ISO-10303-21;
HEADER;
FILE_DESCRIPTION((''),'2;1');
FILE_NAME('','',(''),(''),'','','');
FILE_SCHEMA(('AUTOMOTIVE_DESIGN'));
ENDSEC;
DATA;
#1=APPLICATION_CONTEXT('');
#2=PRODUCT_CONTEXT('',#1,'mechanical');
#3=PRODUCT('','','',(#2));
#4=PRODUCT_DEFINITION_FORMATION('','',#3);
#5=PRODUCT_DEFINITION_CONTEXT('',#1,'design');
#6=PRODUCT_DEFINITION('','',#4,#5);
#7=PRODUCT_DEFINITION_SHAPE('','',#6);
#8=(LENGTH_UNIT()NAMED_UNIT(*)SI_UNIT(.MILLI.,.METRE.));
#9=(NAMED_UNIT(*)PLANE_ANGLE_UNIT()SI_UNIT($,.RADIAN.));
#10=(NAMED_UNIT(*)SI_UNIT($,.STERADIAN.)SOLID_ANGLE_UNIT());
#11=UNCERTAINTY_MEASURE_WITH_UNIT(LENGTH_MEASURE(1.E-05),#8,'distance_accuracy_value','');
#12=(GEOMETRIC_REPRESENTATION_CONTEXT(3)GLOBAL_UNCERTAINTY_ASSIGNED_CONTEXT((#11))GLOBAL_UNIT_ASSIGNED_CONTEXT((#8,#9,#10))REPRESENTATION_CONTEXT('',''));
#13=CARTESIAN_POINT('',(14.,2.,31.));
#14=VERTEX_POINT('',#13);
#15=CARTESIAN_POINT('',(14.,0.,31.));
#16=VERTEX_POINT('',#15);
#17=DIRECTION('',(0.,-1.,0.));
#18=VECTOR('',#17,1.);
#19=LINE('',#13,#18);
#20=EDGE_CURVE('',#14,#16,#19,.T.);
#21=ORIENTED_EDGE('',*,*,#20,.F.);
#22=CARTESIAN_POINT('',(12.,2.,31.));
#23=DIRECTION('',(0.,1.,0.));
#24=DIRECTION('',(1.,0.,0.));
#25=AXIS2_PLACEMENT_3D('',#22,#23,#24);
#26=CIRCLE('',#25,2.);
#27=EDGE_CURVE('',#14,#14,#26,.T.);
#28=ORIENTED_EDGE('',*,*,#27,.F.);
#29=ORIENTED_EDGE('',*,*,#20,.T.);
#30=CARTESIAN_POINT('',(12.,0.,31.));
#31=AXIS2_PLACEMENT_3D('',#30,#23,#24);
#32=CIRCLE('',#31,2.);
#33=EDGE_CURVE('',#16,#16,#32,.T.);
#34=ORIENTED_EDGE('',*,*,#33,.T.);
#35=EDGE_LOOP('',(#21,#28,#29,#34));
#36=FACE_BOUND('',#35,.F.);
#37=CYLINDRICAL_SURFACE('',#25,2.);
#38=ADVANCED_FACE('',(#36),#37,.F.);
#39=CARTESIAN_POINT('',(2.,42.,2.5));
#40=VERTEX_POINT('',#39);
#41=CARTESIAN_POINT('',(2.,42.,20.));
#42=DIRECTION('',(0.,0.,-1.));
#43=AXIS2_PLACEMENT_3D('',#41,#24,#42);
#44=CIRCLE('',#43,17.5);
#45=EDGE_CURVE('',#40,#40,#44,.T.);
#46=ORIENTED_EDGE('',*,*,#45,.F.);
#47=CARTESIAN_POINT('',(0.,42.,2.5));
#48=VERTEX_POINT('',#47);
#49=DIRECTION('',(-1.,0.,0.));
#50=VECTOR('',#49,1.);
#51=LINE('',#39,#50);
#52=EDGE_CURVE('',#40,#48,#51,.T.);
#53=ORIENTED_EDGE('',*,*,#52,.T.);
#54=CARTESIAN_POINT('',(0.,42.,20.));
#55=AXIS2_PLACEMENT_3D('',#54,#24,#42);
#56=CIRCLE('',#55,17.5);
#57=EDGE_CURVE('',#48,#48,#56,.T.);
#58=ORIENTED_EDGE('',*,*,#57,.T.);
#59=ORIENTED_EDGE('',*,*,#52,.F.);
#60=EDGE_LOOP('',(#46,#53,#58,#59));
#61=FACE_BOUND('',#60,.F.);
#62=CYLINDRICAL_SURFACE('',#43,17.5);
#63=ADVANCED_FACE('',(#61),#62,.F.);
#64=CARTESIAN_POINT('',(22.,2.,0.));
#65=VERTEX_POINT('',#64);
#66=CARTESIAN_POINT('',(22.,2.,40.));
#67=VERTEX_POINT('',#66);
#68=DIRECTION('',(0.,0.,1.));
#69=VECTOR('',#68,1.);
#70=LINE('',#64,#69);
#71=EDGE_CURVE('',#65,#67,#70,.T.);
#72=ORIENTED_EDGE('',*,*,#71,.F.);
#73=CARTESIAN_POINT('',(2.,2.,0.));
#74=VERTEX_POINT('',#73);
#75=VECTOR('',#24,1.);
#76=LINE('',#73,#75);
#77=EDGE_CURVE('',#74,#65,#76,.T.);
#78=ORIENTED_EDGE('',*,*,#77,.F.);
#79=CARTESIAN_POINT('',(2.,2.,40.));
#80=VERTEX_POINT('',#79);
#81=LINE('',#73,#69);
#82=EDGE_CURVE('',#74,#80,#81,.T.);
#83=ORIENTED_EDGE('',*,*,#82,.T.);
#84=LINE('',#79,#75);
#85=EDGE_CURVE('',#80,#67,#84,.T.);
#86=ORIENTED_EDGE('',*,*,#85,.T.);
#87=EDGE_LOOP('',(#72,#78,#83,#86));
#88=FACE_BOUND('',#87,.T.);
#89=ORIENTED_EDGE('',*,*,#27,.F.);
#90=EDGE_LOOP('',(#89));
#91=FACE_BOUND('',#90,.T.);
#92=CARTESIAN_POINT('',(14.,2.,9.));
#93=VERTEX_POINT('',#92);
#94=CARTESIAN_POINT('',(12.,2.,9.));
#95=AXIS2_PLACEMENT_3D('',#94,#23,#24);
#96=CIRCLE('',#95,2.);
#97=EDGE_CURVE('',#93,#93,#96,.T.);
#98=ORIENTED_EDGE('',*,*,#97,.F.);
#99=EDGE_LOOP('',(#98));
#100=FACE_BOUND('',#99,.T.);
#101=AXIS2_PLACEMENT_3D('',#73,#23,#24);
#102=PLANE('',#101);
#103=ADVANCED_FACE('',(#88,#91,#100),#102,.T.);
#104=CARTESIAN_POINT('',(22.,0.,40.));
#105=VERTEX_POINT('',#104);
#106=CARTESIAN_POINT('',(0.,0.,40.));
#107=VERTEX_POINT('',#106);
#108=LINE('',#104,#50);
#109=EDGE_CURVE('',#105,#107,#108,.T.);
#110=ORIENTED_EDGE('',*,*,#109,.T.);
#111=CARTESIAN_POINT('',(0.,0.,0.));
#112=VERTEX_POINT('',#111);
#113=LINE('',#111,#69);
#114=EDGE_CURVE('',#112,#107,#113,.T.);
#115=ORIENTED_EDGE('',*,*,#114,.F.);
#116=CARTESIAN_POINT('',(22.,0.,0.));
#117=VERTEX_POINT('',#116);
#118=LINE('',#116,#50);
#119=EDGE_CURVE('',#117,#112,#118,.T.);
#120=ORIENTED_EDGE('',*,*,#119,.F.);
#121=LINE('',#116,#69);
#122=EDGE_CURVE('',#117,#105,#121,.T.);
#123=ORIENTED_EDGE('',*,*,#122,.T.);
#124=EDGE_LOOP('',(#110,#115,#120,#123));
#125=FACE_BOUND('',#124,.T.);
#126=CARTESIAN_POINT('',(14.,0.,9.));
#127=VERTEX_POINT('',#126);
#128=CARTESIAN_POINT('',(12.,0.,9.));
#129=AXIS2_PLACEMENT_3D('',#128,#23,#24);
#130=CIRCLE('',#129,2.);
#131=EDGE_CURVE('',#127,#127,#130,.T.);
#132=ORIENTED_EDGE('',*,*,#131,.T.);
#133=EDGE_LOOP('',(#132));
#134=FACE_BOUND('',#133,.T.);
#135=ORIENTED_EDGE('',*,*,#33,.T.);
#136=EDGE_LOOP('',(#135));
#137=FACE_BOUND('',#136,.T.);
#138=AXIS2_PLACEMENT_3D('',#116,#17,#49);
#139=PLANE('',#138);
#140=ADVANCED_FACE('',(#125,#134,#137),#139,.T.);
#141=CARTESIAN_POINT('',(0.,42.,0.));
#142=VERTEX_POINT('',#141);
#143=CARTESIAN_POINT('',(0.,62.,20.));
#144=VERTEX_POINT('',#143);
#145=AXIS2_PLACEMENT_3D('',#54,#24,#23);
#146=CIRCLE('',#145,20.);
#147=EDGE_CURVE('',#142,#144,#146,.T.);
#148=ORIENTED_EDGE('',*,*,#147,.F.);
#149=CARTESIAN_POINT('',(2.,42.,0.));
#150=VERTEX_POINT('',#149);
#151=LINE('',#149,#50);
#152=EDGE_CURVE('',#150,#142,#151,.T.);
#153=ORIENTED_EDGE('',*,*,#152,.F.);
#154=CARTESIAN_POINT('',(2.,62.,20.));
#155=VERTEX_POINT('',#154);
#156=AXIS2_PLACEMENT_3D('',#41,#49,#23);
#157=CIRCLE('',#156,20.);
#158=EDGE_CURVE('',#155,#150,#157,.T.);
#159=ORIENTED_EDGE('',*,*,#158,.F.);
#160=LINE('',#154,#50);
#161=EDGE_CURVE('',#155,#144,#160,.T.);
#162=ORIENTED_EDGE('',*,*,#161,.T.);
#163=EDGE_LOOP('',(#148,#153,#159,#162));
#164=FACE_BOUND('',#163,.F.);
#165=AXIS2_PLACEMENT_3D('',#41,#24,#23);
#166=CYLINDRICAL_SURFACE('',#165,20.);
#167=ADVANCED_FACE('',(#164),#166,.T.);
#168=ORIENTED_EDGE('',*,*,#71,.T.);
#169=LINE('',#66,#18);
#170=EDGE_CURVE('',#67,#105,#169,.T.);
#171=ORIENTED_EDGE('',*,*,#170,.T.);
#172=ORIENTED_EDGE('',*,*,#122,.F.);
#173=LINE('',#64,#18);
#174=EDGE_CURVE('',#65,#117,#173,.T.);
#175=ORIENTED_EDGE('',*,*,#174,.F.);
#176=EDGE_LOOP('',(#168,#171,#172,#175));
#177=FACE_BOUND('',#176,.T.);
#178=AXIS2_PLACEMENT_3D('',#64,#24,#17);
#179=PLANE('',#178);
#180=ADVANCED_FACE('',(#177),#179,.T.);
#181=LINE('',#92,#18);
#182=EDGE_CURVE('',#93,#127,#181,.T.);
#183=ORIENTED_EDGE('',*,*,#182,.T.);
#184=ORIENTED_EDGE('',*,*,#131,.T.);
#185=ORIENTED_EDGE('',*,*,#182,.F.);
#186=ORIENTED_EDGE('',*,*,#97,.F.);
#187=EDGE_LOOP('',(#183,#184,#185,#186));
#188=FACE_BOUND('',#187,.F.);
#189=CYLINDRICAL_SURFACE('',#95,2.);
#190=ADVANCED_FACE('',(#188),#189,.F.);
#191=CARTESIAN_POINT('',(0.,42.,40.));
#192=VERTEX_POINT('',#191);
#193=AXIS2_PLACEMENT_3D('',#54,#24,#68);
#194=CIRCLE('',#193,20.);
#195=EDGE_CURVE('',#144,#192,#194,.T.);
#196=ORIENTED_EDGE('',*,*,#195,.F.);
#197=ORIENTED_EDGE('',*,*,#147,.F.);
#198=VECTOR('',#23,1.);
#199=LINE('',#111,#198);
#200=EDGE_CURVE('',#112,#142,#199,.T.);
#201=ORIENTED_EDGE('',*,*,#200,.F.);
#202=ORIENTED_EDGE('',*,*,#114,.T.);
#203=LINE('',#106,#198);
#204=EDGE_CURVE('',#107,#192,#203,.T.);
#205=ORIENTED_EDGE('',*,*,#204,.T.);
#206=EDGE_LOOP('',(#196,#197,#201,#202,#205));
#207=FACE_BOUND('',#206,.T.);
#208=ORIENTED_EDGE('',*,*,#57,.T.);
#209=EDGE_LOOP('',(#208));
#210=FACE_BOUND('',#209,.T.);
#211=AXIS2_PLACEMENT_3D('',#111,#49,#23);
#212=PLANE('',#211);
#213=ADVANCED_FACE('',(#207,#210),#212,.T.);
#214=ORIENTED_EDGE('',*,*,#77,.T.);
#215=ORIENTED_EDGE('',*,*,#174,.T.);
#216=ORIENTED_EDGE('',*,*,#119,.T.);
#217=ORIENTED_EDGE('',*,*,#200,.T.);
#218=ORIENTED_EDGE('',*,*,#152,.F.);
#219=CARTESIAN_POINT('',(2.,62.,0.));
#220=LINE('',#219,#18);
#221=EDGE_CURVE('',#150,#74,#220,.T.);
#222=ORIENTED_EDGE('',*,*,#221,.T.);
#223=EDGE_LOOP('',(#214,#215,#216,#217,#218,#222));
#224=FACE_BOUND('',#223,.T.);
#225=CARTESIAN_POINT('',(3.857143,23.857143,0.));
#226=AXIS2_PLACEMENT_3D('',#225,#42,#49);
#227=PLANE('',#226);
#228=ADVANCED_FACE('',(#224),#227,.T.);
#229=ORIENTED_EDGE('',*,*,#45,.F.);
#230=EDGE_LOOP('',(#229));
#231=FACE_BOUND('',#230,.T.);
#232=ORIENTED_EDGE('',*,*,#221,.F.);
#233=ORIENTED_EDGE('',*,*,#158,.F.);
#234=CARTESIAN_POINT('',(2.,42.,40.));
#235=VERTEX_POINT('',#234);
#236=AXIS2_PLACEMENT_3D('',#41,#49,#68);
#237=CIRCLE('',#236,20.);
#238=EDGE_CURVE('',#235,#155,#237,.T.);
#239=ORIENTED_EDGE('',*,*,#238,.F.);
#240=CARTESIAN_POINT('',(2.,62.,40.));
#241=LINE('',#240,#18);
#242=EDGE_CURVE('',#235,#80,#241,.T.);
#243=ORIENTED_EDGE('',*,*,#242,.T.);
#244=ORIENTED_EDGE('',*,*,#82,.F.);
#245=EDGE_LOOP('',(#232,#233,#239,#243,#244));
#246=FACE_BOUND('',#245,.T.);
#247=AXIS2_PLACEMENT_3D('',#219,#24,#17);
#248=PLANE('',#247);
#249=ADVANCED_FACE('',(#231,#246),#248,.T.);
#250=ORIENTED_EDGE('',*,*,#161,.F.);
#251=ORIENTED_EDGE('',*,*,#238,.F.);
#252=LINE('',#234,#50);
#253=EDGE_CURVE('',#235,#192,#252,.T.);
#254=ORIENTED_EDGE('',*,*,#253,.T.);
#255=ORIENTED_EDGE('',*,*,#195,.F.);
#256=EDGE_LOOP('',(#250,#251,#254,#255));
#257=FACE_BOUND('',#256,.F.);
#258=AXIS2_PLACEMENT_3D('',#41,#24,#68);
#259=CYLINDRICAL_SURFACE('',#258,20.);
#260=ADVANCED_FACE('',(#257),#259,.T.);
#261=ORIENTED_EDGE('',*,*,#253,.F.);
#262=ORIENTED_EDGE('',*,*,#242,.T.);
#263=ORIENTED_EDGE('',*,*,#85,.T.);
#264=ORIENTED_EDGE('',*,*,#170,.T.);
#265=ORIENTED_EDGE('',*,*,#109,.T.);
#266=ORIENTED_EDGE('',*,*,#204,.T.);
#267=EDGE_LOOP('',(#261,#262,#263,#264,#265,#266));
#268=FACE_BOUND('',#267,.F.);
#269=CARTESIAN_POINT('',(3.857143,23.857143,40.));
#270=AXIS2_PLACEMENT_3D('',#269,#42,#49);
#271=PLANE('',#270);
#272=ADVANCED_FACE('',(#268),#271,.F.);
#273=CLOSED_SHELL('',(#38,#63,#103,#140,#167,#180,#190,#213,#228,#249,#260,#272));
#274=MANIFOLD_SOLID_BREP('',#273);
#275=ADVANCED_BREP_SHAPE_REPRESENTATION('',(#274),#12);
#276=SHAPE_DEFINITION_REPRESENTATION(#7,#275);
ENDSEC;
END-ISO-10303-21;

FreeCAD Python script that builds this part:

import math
import FreeCAD as App
import Part
import Sketcher
from FreeCAD import Vector

doc = App.newDocument("Part")
body = doc.addObject("PartDesign::Body", "Body")

sketch1 = body.newObject("Sketcher::SketchObject", "Sketch")
sketch1.AttachmentSupport = (doc.getObject("XY_Plane"), [""])
sketch1.MapMode = "FlatFace"
sketch1.addGeometry([
    Part.LineSegment(Vector(0, 62, 0), Vector(0, 0, 0)),
    Part.LineSegment(Vector(0, 0, 0), Vector(22, 0, 0)),
    Part.LineSegment(Vector(22, 0, 0), Vector(22, 2, 0)),
    Part.LineSegment(Vector(22, 2, 0), Vector(2, 2, 0)),
    Part.LineSegment(Vector(2, 2, 0), Vector(2, 62, 0)),
    Part.LineSegment(Vector(2, 62, 0), Vector(0, 62, 0)),
], False)
sketch1.addConstraint([
    Sketcher.Constraint("Coincident", 0, 2, 1, 1),
    Sketcher.Constraint("Coincident", 1, 2, 2, 1),
    Sketcher.Constraint("Coincident", 2, 2, 3, 1),
    Sketcher.Constraint("Coincident", 3, 2, 4, 1),
    Sketcher.Constraint("Coincident", 4, 2, 5, 1),
    Sketcher.Constraint("Coincident", 5, 2, 0, 1),
    Sketcher.Constraint("Vertical", 0),
    Sketcher.Constraint("Horizontal", 1),
    Sketcher.Constraint("Vertical", 2),
    Sketcher.Constraint("Horizontal", 3),
    Sketcher.Constraint("Vertical", 4),
    Sketcher.Constraint("Horizontal", 5),
    Sketcher.Constraint("Coincident", 0, 2, -1, 1),
    Sketcher.Constraint("Equal", 5, 2),
    Sketcher.Constraint("DistanceX", 1, 1, 1, 2, 22.0),
    Sketcher.Constraint("DistanceX", 3, 2, 3, 1, 20.0),
    Sketcher.Constraint("DistanceY", 0, 2, 0, 1, 62.0),
])
pad1 = body.newObject("PartDesign::Pad", "Pad")
pad1.Profile = sketch1
pad1.Length = 40

sketch2 = body.newObject("Sketcher::SketchObject", "Sketch001")
sketch2.AttachmentSupport = (doc.getObject("YZ_Plane"), [""])
sketch2.MapMode = "FlatFace"
sketch2.AttachmentOffset = App.Placement(Vector(0, 0, 2), App.Rotation())
sketch2.addGeometry(Part.Circle(Vector(42, 20, 0), Vector(0, 0, 1), 17.5), False)
sketch2.addConstraint([
    Sketcher.Constraint("Diameter", 0, 35.0),
    Sketcher.Constraint("DistanceX", -1, 1, 0, 3, 42.0),
    Sketcher.Constraint("DistanceY", -1, 1, 0, 3, 20.0),
])
pocket1 = body.newObject("PartDesign::Pocket", "Pocket")
pocket1.Profile = sketch2
pocket1.Type = "UpToFirst"

sketch3 = body.newObject("Sketcher::SketchObject", "Sketch002")
sketch3.AttachmentSupport = (doc.getObject("YZ_Plane"), [""])
sketch3.MapMode = "FlatFace"
sketch3.AttachmentOffset = App.Placement(Vector(0, 0, 2), App.Rotation())
sketch3.addGeometry([
    Part.LineSegment(Vector(62, 40, 0), Vector(42, 40, 0)),
    Part.ArcOfCircle(Part.Circle(Vector(42, 20, 0), Vector(0, 0, 1), 20), math.radians(0), math.radians(90)),
    Part.LineSegment(Vector(62, 20, 0), Vector(62, 40, 0)),
], False)
sketch3.addConstraint([
    Sketcher.Constraint("Tangent", 0, 2, 1, 2),
    Sketcher.Constraint("Tangent", 1, 1, 2, 1),
    Sketcher.Constraint("Coincident", 2, 2, 0, 1),
    Sketcher.Constraint("Horizontal", 0),
    Sketcher.Constraint("Vertical", 2),
    Sketcher.Constraint("Radius", 1, 20.0),
    Sketcher.Constraint("DistanceX", -1, 1, 1, 3, 42.0),
    Sketcher.Constraint("DistanceY", -1, 1, 1, 3, 20.0),
])
pocket2 = body.newObject("PartDesign::Pocket", "Pocket001")
pocket2.Profile = sketch3
pocket2.Type = "UpToFirst"

sketch4 = body.newObject("Sketcher::SketchObject", "Sketch003")
sketch4.AttachmentSupport = (doc.getObject("YZ_Plane"), [""])
sketch4.MapMode = "FlatFace"
sketch4.AttachmentOffset = App.Placement(Vector(0, 0, 2), App.Rotation())
sketch4.addGeometry([
    Part.LineSegment(Vector(62, 0, 0), Vector(62, 20, 0)),
    Part.ArcOfCircle(Part.Circle(Vector(42, 20, 0), Vector(0, 0, 1), 20), math.radians(-90), math.radians(0)),
    Part.LineSegment(Vector(42, 0, 0), Vector(62, 0, 0)),
], False)
sketch4.addConstraint([
    Sketcher.Constraint("Tangent", 0, 2, 1, 2),
    Sketcher.Constraint("Tangent", 1, 1, 2, 1),
    Sketcher.Constraint("Coincident", 2, 2, 0, 1),
    Sketcher.Constraint("Vertical", 0),
    Sketcher.Constraint("Horizontal", 2),
    Sketcher.Constraint("PointOnObject", 1, 1, -1),
    Sketcher.Constraint("Radius", 1, 20.0),
    Sketcher.Constraint("DistanceX", -1, 1, 1, 3, 42.0),
])
pocket3 = body.newObject("PartDesign::Pocket", "Pocket002")
pocket3.Profile = sketch4
pocket3.Type = "UpToFirst"

sketch5 = body.newObject("Sketcher::SketchObject", "Sketch004")
sketch5.AttachmentSupport = (doc.getObject("XZ_Plane"), [""])
sketch5.MapMode = "FlatFace"
sketch5.AttachmentOffset = App.Placement(Vector(0, 0, -2), App.Rotation())
sketch5.addGeometry(Part.Circle(Vector(12, 9, 0), Vector(0, 0, 1), 2), False)
sketch5.addConstraint([
    Sketcher.Constraint("Diameter", 0, 4.0),
    Sketcher.Constraint("DistanceX", -1, 1, 0, 3, 12.0),
    Sketcher.Constraint("DistanceY", -1, 1, 0, 3, 9.0),
])
pocket4 = body.newObject("PartDesign::Pocket", "Pocket003")
pocket4.Profile = sketch5
pocket4.Type = "UpToFirst"
pocket4.Reversed = True

sketch6 = body.newObject("Sketcher::SketchObject", "Sketch005")
sketch6.AttachmentSupport = (doc.getObject("XZ_Plane"), [""])
sketch6.MapMode = "FlatFace"
sketch6.AttachmentOffset = App.Placement(Vector(0, 0, -2), App.Rotation())
sketch6.addGeometry(Part.Circle(Vector(12, 31, 0), Vector(0, 0, 1), 2), False)
sketch6.addConstraint([
    Sketcher.Constraint("Diameter", 0, 4.0),
    Sketcher.Constraint("DistanceX", -1, 1, 0, 3, 12.0),
    Sketcher.Constraint("DistanceY", -1, 1, 0, 3, 31.0),
])
pocket5 = body.newObject("PartDesign::Pocket", "Pocket004")
pocket5.Profile = sketch6
pocket5.Type = "UpToFirst"
pocket5.Reversed = True

doc.recompute()
